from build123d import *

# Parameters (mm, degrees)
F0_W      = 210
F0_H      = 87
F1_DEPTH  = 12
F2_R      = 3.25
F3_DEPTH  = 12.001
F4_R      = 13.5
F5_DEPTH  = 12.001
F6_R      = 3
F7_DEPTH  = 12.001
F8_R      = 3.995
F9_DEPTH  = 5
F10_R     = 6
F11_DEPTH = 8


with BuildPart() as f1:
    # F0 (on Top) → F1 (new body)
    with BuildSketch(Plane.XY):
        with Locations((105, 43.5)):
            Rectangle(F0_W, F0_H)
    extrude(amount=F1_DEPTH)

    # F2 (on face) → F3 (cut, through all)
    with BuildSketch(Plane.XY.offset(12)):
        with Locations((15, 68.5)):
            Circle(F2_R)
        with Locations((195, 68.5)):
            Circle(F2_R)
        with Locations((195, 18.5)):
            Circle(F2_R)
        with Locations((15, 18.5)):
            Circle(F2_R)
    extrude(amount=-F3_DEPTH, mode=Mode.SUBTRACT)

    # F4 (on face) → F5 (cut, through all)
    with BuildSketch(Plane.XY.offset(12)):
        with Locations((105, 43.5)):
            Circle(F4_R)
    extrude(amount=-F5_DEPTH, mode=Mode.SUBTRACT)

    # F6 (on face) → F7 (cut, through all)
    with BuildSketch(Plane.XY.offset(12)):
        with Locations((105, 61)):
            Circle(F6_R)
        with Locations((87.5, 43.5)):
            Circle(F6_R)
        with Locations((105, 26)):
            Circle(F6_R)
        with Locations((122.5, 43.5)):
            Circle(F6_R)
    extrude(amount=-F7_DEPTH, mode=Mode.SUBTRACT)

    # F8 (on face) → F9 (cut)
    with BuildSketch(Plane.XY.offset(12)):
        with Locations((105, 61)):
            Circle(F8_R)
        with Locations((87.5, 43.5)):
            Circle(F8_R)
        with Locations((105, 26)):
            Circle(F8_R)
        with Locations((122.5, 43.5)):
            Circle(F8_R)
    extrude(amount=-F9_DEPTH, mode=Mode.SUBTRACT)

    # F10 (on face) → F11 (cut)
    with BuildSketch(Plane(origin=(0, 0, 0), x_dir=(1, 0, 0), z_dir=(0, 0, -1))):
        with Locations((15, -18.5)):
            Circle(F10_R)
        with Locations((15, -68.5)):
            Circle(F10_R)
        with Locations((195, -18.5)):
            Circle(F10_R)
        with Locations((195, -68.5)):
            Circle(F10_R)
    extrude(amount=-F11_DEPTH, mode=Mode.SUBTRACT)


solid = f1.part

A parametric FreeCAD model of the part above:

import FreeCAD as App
import Part
import Sketcher


def add_polygon(sketch, points):
    """Adds a closed chain of lines whose ends are joined by coincident constraints."""
    first, n = sketch.GeometryCount, len(points)
    for a, b in zip(points, points[1:] + points[:1]):
        sketch.addGeometry(Part.LineSegment(App.Vector(*a, 0), App.Vector(*b, 0)), False)
    for i in range(n):
        sketch.addConstraint(Sketcher.Constraint("Coincident", first + i, 2, first + (i + 1) % n, 1))

doc = App.newDocument("Part")
body = doc.addObject("PartDesign::Body", "Body")

# Sketch on XY plane
sketch1 = doc.addObject("Sketcher::SketchObject", "Sketch")
body.addObject(sketch1)
sketch1.AttachmentSupport = (doc.XY_Plane, [""])
sketch1.MapMode = "FlatFace"
add_polygon(sketch1, [(0, 87), (0, 0), (210, 0), (210, 87)])  # lines 0-3
sketch1.addConstraint([
    Sketcher.Constraint("Vertical", 0),
    Sketcher.Constraint("Horizontal", 1),
    Sketcher.Constraint("Vertical", 2),
    Sketcher.Constraint("Horizontal", 3),
    Sketcher.Constraint("Coincident", 0, 2, -1, 1),
    Sketcher.Constraint("DistanceX", 1, 1, 1, 2, 210.0),
    Sketcher.Constraint("DistanceY", 0, 2, 0, 1, 87.0),
])
pad1 = doc.addObject("PartDesign::Pad", "Pad")
body.addObject(pad1)
pad1.Profile = sketch1
pad1.Length = 12

# Sketch on XY plane
sketch2 = doc.addObject("Sketcher::SketchObject", "Sketch001")
body.addObject(sketch2)
sketch2.AttachmentSupport = (doc.XY_Plane, [""])
sketch2.MapMode = "FlatFace"
sketch2.AttachmentOffset = App.Placement(App.Vector(0, 0, 12), App.Rotation())
sketch2.addGeometry([
    Part.Circle(App.Vector(15, 68.5, 0), App.Vector(0, 0, 1), 3.2),
    Part.Circle(App.Vector(195, 68.5, 0), App.Vector(0, 0, 1), 3.2),
    Part.Circle(App.Vector(195, 18.5, 0), App.Vector(0, 0, 1), 3.2),
    Part.Circle(App.Vector(15, 18.5, 0), App.Vector(0, 0, 1), 3.2),
], False)
sketch2.addConstraint([
    Sketcher.Constraint("Equal", 0, 1),
    Sketcher.Constraint("Equal", 1, 2),
    Sketcher.Constraint("Equal", 2, 3),
    Sketcher.Constraint("Horizontal", 0, 3, 1, 3),
    Sketcher.Constraint("Horizontal", 2, 3, 3, 3),
    Sketcher.Constraint("Vertical", 1, 3, 2, 3),
    Sketcher.Constraint("Vertical", 0, 3, 3, 3),
    Sketcher.Constraint("Diameter", 0, 6.5),
    Sketcher.Constraint("DistanceX", -1, 1, 0, 3, 15.0),
    Sketcher.Constraint("DistanceX", -1, 1, 1, 3, 195.0),
    Sketcher.Constraint("DistanceY", 2, 3, 1, 3, 50.0),
    Sketcher.Constraint("DistanceY", -1, 1, 0, 3, 68.5),
])
pocket1 = doc.addObject("PartDesign::Pocket", "Pocket")
body.addObject(pocket1)
pocket1.Profile = sketch2
pocket1.Type = "ThroughAll"

# Sketch on XY plane
sketch3 = doc.addObject("Sketcher::SketchObject", "Sketch002")
body.addObject(sketch3)
sketch3.AttachmentSupport = (doc.XY_Plane, [""])
sketch3.MapMode = "FlatFace"
sketch3.AttachmentOffset = App.Placement(App.Vector(0, 0, 12), App.Rotation())
sketch3.addGeometry(Part.Circle(App.Vector(105, 44, 0), App.Vector(0, 0, 1), 14), False)
sketch3.addConstraint([
    Sketcher.Constraint("Diameter", 0, 27.0),
    Sketcher.Constraint("DistanceX", -1, 1, 0, 3, 105.0),
    Sketcher.Constraint("DistanceY", -1, 1, 0, 3, 43.5),
])
pocket2 = doc.addObject("PartDesign::Pocket", "Pocket001")
body.addObject(pocket2)
pocket2.Profile = sketch3
pocket2.Type = "ThroughAll"

# Sketch on XY plane
sketch4 = doc.addObject("Sketcher::SketchObject", "Sketch003")
body.addObject(sketch4)
sketch4.AttachmentSupport = (doc.XY_Plane, [""])
sketch4.MapMode = "FlatFace"
sketch4.AttachmentOffset = App.Placement(App.Vector(0, 0, 12), App.Rotation())
sketch4.addGeometry([
    Part.Circle(App.Vector(105, 61, 0), App.Vector(0, 0, 1), 3),
    Part.Circle(App.Vector(87.5, 43.5, 0), App.Vector(0, 0, 1), 3),
    Part.Circle(App.Vector(105, 26, 0), App.Vector(0, 0, 1), 3),
    Part.Circle(App.Vector(122.5, 43.5, 0), App.Vector(0, 0, 1), 3),
], False)
sketch4.addConstraint([
    Sketcher.Constraint("Equal", 0, 1),
    Sketcher.Constraint("Equal", 1, 2),
    Sketcher.Constraint("Equal", 2, 3),
    Sketcher.Constraint("Horizontal", 1, 3, 3, 3),
    Sketcher.Constraint("Vertical", 0, 3, 2, 3),
    Sketcher.Constraint("Diameter", 0, 6.0),
    Sketcher.Constraint("DistanceX", -1, 1, 0, 3, 105.0),
    Sketcher.Constraint("DistanceY", -1, 1, 0, 3, 61.0),
    Sketcher.Constraint("DistanceY", -1, 1, 2, 3, 26.0),
    Sketcher.Constraint("DistanceX", 1, 3, 3, 3, 35.0),
    Sketcher.Constraint("DistanceX", -1, 1, 1, 3, 87.5),
    Sketcher.Constraint("DistanceY", -1, 1, 1, 3, 43.5),
])
pocket3 = doc.addObject("PartDesign::Pocket", "Pocket002")
body.addObject(pocket3)
pocket3.Profile = sketch4
pocket3.Type = "ThroughAll"

# Sketch on XY plane
sketch5 = doc.addObject("Sketcher::SketchObject", "Sketch004")
body.addObject(sketch5)
sketch5.AttachmentSupport = (doc.XY_Plane, [""])
sketch5.MapMode = "FlatFace"
sketch5.AttachmentOffset = App.Placement(App.Vector(0, 0, 12), App.Rotation())
sketch5.addGeometry([
    Part.Circle(App.Vector(105, 61, 0), App.Vector(0, 0, 1), 4),
    Part.Circle(App.Vector(87.5, 43.5, 0), App.Vector(0, 0, 1), 4),
    Part.Circle(App.Vector(105, 26, 0), App.Vector(0, 0, 1), 4),
    Part.Circle(App.Vector(122.5, 43.5, 0), App.Vector(0, 0, 1), 4),
], False)
sketch5.addConstraint([
    Sketcher.Constraint("Equal", 0, 1),
    Sketcher.Constraint("Equal", 1, 2),
    Sketcher.Constraint("Equal", 2, 3),
    Sketcher.Constraint("Horizontal", 1, 3, 3, 3),
    Sketcher.Constraint("Vertical", 0, 3, 2, 3),
    Sketcher.Constraint("Diameter", 0, 7.99),
    Sketcher.Constraint("DistanceX", -1, 1, 0, 3, 105.0),
    Sketcher.Constraint("DistanceY", -1, 1, 0, 3, 61.0),
    Sketcher.Constraint("DistanceY", -1, 1, 2, 3, 26.0),
    Sketcher.Constraint("DistanceX", 1, 3, 3, 3, 35.0),
    Sketcher.Constraint("DistanceX", -1, 1, 1, 3, 87.5),
    Sketcher.Constraint("DistanceY", -1, 1, 1, 3, 43.5),
])
pocket4 = doc.addObject("PartDesign::Pocket", "Pocket003")
body.addObject(pocket4)
pocket4.Profile = sketch5
pocket4.Length = 5

# Sketch on XY plane
sketch6 = doc.addObject("Sketcher::SketchObject", "Sketch005")
body.addObject(sketch6)
sketch6.AttachmentSupport = (doc.XY_Plane, [""])
sketch6.MapMode = "FlatFace"
sketch6.addGeometry([
    Part.Circle(App.Vector(15, 18, 0), App.Vector(0, 0, 1), 6),
    Part.Circle(App.Vector(15, 68, 0), App.Vector(0, 0, 1), 6),
    Part.Circle(App.Vector(195, 18, 0), App.Vector(0, 0, 1), 6),
    Part.Circle(App.Vector(195, 68, 0), App.Vector(0, 0, 1), 6),
], False)
sketch6.addConstraint([
    Sketcher.Constraint("Equal", 0, 1),
    Sketcher.Constraint("Equal", 1, 2),
    Sketcher.Constraint("Equal", 2, 3),
    Sketcher.Constraint("Horizontal", 0, 3, 2, 3),
    Sketcher.Constraint("Horizontal", 1, 3, 3, 3),
    Sketcher.Constraint("Vertical", 0, 3, 1, 3),
    Sketcher.Constraint("Vertical", 2, 3, 3, 3),
    Sketcher.Constraint("Diameter", 0, 12.0),
    Sketcher.Constraint("DistanceX", -1, 1, 0, 3, 15.0),
    Sketcher.Constraint("DistanceX", -1, 1, 2, 3, 195.0),
    Sketcher.Constraint("DistanceY", 0, 3, 1, 3, 50.0),
    Sketcher.Constraint("DistanceY", -1, 1, 0, 3, 18.5),
])
pocket5 = doc.addObject("PartDesign::Pocket", "Pocket004")
body.addObject(pocket5)
pocket5.Profile = sketch6
pocket5.Length = 8
pocket5.Reversed = True

doc.recompute()
